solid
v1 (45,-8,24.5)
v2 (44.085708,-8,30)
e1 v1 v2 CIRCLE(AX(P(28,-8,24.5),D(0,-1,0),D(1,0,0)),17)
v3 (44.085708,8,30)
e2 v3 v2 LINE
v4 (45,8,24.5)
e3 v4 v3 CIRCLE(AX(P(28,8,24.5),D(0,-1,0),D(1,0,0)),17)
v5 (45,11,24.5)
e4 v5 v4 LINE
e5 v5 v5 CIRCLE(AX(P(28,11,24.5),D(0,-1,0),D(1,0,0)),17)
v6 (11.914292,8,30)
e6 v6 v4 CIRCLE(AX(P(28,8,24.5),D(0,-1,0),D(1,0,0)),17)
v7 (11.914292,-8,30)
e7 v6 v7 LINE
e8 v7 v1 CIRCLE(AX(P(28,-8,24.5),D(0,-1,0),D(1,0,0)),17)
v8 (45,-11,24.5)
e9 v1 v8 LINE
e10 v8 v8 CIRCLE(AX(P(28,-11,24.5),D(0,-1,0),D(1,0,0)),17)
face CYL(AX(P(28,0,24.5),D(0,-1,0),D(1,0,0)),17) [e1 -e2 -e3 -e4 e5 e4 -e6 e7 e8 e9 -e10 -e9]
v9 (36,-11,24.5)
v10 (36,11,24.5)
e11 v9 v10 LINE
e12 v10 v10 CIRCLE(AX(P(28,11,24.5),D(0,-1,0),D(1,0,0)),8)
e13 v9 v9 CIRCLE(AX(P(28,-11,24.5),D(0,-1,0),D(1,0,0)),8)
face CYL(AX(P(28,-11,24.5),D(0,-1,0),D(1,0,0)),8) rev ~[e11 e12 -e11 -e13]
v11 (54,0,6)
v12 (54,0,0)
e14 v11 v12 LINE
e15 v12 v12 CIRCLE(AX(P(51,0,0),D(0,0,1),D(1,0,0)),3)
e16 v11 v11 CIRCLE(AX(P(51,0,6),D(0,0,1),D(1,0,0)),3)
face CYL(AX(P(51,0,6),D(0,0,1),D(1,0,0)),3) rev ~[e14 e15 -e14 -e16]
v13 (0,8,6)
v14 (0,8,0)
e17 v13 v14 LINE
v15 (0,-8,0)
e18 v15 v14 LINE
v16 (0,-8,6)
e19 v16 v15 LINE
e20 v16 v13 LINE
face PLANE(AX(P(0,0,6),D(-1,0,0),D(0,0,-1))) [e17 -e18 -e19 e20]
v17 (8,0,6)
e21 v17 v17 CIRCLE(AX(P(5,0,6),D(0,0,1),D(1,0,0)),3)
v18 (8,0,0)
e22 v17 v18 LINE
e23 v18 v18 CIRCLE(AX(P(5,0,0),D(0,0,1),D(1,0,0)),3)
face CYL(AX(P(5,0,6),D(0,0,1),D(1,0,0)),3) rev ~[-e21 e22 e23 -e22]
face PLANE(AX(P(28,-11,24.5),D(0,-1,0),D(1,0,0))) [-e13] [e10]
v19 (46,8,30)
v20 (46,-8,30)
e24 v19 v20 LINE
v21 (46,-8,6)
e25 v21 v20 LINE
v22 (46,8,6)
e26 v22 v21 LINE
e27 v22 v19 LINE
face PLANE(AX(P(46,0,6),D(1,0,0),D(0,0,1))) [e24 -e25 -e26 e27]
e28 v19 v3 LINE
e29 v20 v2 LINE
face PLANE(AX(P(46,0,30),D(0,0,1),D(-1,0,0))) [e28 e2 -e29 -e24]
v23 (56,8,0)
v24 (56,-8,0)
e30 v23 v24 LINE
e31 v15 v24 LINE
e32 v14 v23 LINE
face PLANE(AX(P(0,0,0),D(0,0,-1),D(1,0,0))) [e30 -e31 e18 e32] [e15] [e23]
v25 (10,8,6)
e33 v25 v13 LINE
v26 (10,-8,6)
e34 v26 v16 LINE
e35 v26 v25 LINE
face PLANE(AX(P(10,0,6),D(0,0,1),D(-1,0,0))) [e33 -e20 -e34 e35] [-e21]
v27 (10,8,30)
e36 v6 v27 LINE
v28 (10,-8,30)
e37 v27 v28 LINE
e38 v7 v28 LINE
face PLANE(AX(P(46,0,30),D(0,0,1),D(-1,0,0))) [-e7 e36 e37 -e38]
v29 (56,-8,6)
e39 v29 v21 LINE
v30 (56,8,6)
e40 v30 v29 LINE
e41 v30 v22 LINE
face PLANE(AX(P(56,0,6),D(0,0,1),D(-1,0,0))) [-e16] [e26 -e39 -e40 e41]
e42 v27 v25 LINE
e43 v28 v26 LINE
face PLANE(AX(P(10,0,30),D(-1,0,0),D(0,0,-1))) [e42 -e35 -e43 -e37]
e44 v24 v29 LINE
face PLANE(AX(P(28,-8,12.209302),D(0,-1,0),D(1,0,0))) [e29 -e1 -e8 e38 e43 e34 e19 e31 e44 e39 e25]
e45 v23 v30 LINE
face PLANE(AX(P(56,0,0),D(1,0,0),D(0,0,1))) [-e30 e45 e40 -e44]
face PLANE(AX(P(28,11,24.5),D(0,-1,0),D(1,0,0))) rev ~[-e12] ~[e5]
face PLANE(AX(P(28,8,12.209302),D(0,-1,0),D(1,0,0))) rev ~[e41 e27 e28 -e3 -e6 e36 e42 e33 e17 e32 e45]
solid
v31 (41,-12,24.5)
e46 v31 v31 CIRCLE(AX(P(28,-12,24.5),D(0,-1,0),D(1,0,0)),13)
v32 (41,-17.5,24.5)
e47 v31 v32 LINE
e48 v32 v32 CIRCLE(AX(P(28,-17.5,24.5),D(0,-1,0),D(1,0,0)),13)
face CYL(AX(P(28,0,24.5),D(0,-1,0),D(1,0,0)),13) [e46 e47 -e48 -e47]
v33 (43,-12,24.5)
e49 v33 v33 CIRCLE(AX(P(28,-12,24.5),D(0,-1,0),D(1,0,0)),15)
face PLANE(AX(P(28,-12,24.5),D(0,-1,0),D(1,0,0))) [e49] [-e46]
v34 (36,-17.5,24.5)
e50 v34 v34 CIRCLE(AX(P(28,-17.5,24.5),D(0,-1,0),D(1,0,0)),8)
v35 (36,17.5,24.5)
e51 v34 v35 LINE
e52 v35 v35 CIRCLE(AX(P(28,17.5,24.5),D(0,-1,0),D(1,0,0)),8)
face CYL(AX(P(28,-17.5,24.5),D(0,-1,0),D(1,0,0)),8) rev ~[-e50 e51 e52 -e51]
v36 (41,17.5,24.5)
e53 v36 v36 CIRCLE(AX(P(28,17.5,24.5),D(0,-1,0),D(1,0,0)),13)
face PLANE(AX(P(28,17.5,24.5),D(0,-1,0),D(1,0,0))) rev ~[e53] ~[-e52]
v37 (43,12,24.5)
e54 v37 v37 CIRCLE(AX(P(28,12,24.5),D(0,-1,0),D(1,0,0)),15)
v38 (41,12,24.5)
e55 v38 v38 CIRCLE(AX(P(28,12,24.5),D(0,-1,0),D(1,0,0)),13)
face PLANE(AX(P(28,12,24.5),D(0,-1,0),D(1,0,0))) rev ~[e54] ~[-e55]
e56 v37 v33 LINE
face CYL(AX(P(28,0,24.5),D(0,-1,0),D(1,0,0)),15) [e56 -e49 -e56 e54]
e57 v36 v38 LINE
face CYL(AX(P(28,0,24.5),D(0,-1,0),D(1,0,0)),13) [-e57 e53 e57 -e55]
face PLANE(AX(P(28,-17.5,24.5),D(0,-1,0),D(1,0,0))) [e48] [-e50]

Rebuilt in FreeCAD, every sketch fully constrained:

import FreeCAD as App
import Part
import Sketcher

V = App.Vector
Q = App.Units.Quantity

doc = App.newDocument("Part")
body = doc.addObject("PartDesign::Body", "Body")

sketch1 = body.newObject("Sketcher::SketchObject", "Sketch")
sketch1.AttachmentSupport = (doc.getObject("XZ_Plane"), [""])
sketch1.MapMode = "FlatFace"
sketch1.addGeometry(Part.Circle(V(28, 24, 0), V(0, 0, 1), 13), False)
sketch1.addConstraint(Sketcher.Constraint("Diameter", 0, Q("26 mm")))
sketch1.addConstraint(Sketcher.Constraint("DistanceX", -1, 1, 0, 3, Q("28 mm")))
sketch1.addConstraint(Sketcher.Constraint("DistanceY", -1, 1, 0, 3, Q("24.5 mm")))
pad1 = body.newObject("PartDesign::Pad", "Pad")
pad1.Profile = sketch1
pad1.Length = 35
pad1.Midplane = True
body2 = doc.addObject("PartDesign::Body", "Body001")

sketch2 = body2.newObject("Sketcher::SketchObject", "Sketch001")
sketch2.AttachmentSupport = (doc.getObject("XZ_Plane001"), [""])
sketch2.MapMode = "FlatFace"
sketch2.addGeometry(Part.Circle(V(28, 24, 0), V(0, 0, 1), 15), False)
sketch2.addConstraint(Sketcher.Constraint("Diameter", 0, Q("30 mm")))
sketch2.addConstraint(Sketcher.Constraint("DistanceX", -1, 1, 0, 3, Q("28 mm")))
sketch2.addConstraint(Sketcher.Constraint("DistanceY", -1, 1, 0, 3, Q("24.5 mm")))
pad2 = body2.newObject("PartDesign::Pad", "Pad001")
pad2.Profile = sketch2
pad2.Length = 24
pad2.Midplane = True
doc.recompute()

boolean = body2.newObject("PartDesign::Boolean", "Boolean")
boolean.Type = "Fuse"
boolean.addObjects([body])

sketch3 = body2.newObject("Sketcher::SketchObject", "Sketch002")
sketch3.AttachmentSupport = (doc.getObject("XZ_Plane001"), [""])
sketch3.MapMode = "FlatFace"
sketch3.AttachmentOffset = App.Placement(V(0, 0, 17.5), App.Rotation())
sketch3.addGeometry(Part.Circle(V(28, 24, 0), V(0, 0, 1), 8), False)
sketch3.addConstraint(Sketcher.Constraint("Diameter", 0, Q("16 mm")))
sketch3.addConstraint(Sketcher.Constraint("DistanceX", -1, 1, 0, 3, Q("28 mm")))
sketch3.addConstraint(Sketcher.Constraint("DistanceY", -1, 1, 0, 3, Q("24.5 mm")))
pocket1 = body2.newObject("PartDesign::Pocket", "Pocket")
pocket1.Profile = sketch3
pocket1.Type = "ThroughAll"
body3 = doc.addObject("PartDesign::Body", "Body002")

sketch4 = body3.newObject("Sketcher::SketchObject", "Sketch003")
sketch4.AttachmentSupport = (doc.getObject("XZ_Plane002"), [""])
sketch4.MapMode = "FlatFace"
sketch4.addGeometry(Part.Circle(V(28, 24, 0), V(0, 0, 1), 17), False)
sketch4.addConstraint(Sketcher.Constraint("Diameter", 0, Q("34 mm")))
sketch4.addConstraint(Sketcher.Constraint("DistanceX", -1, 1, 0, 3, Q("28 mm")))
sketch4.addConstraint(Sketcher.Constraint("DistanceY", -1, 1, 0, 3, Q("24.5 mm")))
pad3 = body3.newObject("PartDesign::Pad", "Pad002")
pad3.Profile = sketch4
pad3.Length = 22
pad3.Midplane = True
body4 = doc.addObject("PartDesign::Body", "Body003")

sketch5 = body4.newObject("Sketcher::SketchObject", "Sketch004")
sketch5.AttachmentSupport = (doc.getObject("XZ_Plane003"), [""])
sketch5.MapMode = "FlatFace"
sketch5.addGeometry(Part.LineSegment(V(0, 0, 0), V(56, 0, 0)), False)
sketch5.addGeometry(Part.LineSegment(V(56, 0, 0), V(56, 6, 0)), False)
sketch5.addGeometry(Part.LineSegment(V(56, 6, 0), V(46, 6, 0)), False)
sketch5.addGeometry(Part.LineSegment(V(46, 6, 0), V(46, 30, 0)), False)
sketch5.addGeometry(Part.LineSegment(V(46, 30, 0), V(10, 30, 0)), False)
sketch5.addGeometry(Part.LineSegment(V(10, 30, 0), V(10, 6, 0)), False)
sketch5.addGeometry(Part.LineSegment(V(10, 6, 0), V(0, 6, 0)), False)
sketch5.addGeometry(Part.LineSegment(V(0, 6, 0), V(0, 0, 0)), False)
sketch5.addConstraint(Sketcher.Constraint("Coincident", 0, 2, 1, 1))
sketch5.addConstraint(Sketcher.Constraint("Coincident", 1, 2, 2, 1))
sketch5.addConstraint(Sketcher.Constraint("Coincident", 2, 2, 3, 1))
sketch5.addConstraint(Sketcher.Constraint("Coincident", 3, 2, 4, 1))
sketch5.addConstraint(Sketcher.Constraint("Coincident", 4, 2, 5, 1))
sketch5.addConstraint(Sketcher.Constraint("Coincident", 5, 2, 6, 1))
sketch5.addConstraint(Sketcher.Constraint("Coincident", 6, 2, 7, 1))
sketch5.addConstraint(Sketcher.Constraint("Coincident", 7, 2, 0, 1))
sketch5.addConstraint(Sketcher.Constraint("Horizontal", 0))
sketch5.addConstraint(Sketcher.Constraint("Vertical", 1))
sketch5.addConstraint(Sketcher.Constraint("Horizontal", 2))
sketch5.addConstraint(Sketcher.Constraint("Vertical", 3))
sketch5.addConstraint(Sketcher.Constraint("Horizontal", 4))
sketch5.addConstraint(Sketcher.Constraint("Vertical", 5))
sketch5.addConstraint(Sketcher.Constraint("Horizontal", 6))
sketch5.addConstraint(Sketcher.Constraint("Vertical", 7))
sketch5.addConstraint(Sketcher.Constraint("Coincident", 7, 2, -1, 1))
sketch5.addConstraint(Sketcher.Constraint("Horizontal", 2, 2, 5, 2))
sketch5.addConstraint(Sketcher.Constraint("Equal", 2, 6))
sketch5.addConstraint(Sketcher.Constraint("DistanceX", 0, 1, 0, 2, Q("56 mm")))
sketch5.addConstraint(Sketcher.Constraint("DistanceX", 2, 2, 2, 1, Q("10 mm")))
sketch5.addConstraint(Sketcher.Constraint("DistanceY", 1, 1, 1, 2, Q("6 mm")))
sketch5.addConstraint(Sketcher.Constraint("DistanceY", 3, 1, 3, 2, Q("24 mm")))
pad4 = body4.newObject("PartDesign::Pad", "Pad003")
pad4.Profile = sketch5
pad4.Length = 16
pad4.Midplane = True
doc.recompute()

boolean2 = body4.newObject("PartDesign::Boolean", "Boolean001")
boolean2.Type = "Fuse"
boolean2.addObjects([body3])

sketch6 = body4.newObject("Sketcher::SketchObject", "Sketch005")
sketch6.AttachmentSupport = (doc.getObject("XZ_Plane003"), [""])
sketch6.MapMode = "FlatFace"
sketch6.AttachmentOffset = App.Placement(V(0, 0, 11), App.Rotation())
sketch6.addGeometry(Part.Circle(V(28, 24, 0), V(0, 0, 1), 8), False)
sketch6.addConstraint(Sketcher.Constraint("Diameter", 0, Q("16 mm")))
sketch6.addConstraint(Sketcher.Constraint("DistanceX", -1, 1, 0, 3, Q("28 mm")))
sketch6.addConstraint(Sketcher.Constraint("DistanceY", -1, 1, 0, 3, Q("24.5 mm")))
pocket2 = body4.newObject("PartDesign::Pocket", "Pocket001")
pocket2.Profile = sketch6
pocket2.Type = "ThroughAll"

sketch7 = body4.newObject("Sketcher::SketchObject", "Sketch006")
sketch7.AttachmentSupport = (doc.getObject("XY_Plane003"), [""])
sketch7.MapMode = "FlatFace"
sketch7.AttachmentOffset = App.Placement(V(0, 0, 6), App.Rotation())
sketch7.addGeometry(Part.Circle(V(5, 0, 0), V(0, 0, 1), 3), False)
sketch7.addConstraint(Sketcher.Constraint("PointOnObject", 0, 3, -1))
sketch7.addConstraint(Sketcher.Constraint("Diameter", 0, Q("6 mm")))
sketch7.addConstraint(Sketcher.Constraint("DistanceX", -1, 1, 0, 3, Q("5 mm")))
pocket3 = body4.newObject("PartDesign::Pocket", "Pocket002")
pocket3.Profile = sketch7
pocket3.Type = "ThroughAll"

sketch8 = body4.newObject("Sketcher::SketchObject", "Sketch007")
sketch8.AttachmentSupport = (doc.getObject("XY_Plane003"), [""])
sketch8.MapMode = "FlatFace"
sketch8.AttachmentOffset = App.Placement(V(0, 0, 6), App.Rotation())
sketch8.addGeometry(Part.Circle(V(51, 0, 0), V(0, 0, 1), 3), False)
sketch8.addConstraint(Sketcher.Constraint("PointOnObject", 0, 3, -1))
sketch8.addConstraint(Sketcher.Constraint("Diameter", 0, Q("6 mm")))
sketch8.addConstraint(Sketcher.Constraint("DistanceX", -1, 1, 0, 3, Q("51 mm")))
pocket4 = body4.newObject("PartDesign::Pocket", "Pocket003")
pocket4.Profile = sketch8
pocket4.Type = "ThroughAll"

doc.recompute()
